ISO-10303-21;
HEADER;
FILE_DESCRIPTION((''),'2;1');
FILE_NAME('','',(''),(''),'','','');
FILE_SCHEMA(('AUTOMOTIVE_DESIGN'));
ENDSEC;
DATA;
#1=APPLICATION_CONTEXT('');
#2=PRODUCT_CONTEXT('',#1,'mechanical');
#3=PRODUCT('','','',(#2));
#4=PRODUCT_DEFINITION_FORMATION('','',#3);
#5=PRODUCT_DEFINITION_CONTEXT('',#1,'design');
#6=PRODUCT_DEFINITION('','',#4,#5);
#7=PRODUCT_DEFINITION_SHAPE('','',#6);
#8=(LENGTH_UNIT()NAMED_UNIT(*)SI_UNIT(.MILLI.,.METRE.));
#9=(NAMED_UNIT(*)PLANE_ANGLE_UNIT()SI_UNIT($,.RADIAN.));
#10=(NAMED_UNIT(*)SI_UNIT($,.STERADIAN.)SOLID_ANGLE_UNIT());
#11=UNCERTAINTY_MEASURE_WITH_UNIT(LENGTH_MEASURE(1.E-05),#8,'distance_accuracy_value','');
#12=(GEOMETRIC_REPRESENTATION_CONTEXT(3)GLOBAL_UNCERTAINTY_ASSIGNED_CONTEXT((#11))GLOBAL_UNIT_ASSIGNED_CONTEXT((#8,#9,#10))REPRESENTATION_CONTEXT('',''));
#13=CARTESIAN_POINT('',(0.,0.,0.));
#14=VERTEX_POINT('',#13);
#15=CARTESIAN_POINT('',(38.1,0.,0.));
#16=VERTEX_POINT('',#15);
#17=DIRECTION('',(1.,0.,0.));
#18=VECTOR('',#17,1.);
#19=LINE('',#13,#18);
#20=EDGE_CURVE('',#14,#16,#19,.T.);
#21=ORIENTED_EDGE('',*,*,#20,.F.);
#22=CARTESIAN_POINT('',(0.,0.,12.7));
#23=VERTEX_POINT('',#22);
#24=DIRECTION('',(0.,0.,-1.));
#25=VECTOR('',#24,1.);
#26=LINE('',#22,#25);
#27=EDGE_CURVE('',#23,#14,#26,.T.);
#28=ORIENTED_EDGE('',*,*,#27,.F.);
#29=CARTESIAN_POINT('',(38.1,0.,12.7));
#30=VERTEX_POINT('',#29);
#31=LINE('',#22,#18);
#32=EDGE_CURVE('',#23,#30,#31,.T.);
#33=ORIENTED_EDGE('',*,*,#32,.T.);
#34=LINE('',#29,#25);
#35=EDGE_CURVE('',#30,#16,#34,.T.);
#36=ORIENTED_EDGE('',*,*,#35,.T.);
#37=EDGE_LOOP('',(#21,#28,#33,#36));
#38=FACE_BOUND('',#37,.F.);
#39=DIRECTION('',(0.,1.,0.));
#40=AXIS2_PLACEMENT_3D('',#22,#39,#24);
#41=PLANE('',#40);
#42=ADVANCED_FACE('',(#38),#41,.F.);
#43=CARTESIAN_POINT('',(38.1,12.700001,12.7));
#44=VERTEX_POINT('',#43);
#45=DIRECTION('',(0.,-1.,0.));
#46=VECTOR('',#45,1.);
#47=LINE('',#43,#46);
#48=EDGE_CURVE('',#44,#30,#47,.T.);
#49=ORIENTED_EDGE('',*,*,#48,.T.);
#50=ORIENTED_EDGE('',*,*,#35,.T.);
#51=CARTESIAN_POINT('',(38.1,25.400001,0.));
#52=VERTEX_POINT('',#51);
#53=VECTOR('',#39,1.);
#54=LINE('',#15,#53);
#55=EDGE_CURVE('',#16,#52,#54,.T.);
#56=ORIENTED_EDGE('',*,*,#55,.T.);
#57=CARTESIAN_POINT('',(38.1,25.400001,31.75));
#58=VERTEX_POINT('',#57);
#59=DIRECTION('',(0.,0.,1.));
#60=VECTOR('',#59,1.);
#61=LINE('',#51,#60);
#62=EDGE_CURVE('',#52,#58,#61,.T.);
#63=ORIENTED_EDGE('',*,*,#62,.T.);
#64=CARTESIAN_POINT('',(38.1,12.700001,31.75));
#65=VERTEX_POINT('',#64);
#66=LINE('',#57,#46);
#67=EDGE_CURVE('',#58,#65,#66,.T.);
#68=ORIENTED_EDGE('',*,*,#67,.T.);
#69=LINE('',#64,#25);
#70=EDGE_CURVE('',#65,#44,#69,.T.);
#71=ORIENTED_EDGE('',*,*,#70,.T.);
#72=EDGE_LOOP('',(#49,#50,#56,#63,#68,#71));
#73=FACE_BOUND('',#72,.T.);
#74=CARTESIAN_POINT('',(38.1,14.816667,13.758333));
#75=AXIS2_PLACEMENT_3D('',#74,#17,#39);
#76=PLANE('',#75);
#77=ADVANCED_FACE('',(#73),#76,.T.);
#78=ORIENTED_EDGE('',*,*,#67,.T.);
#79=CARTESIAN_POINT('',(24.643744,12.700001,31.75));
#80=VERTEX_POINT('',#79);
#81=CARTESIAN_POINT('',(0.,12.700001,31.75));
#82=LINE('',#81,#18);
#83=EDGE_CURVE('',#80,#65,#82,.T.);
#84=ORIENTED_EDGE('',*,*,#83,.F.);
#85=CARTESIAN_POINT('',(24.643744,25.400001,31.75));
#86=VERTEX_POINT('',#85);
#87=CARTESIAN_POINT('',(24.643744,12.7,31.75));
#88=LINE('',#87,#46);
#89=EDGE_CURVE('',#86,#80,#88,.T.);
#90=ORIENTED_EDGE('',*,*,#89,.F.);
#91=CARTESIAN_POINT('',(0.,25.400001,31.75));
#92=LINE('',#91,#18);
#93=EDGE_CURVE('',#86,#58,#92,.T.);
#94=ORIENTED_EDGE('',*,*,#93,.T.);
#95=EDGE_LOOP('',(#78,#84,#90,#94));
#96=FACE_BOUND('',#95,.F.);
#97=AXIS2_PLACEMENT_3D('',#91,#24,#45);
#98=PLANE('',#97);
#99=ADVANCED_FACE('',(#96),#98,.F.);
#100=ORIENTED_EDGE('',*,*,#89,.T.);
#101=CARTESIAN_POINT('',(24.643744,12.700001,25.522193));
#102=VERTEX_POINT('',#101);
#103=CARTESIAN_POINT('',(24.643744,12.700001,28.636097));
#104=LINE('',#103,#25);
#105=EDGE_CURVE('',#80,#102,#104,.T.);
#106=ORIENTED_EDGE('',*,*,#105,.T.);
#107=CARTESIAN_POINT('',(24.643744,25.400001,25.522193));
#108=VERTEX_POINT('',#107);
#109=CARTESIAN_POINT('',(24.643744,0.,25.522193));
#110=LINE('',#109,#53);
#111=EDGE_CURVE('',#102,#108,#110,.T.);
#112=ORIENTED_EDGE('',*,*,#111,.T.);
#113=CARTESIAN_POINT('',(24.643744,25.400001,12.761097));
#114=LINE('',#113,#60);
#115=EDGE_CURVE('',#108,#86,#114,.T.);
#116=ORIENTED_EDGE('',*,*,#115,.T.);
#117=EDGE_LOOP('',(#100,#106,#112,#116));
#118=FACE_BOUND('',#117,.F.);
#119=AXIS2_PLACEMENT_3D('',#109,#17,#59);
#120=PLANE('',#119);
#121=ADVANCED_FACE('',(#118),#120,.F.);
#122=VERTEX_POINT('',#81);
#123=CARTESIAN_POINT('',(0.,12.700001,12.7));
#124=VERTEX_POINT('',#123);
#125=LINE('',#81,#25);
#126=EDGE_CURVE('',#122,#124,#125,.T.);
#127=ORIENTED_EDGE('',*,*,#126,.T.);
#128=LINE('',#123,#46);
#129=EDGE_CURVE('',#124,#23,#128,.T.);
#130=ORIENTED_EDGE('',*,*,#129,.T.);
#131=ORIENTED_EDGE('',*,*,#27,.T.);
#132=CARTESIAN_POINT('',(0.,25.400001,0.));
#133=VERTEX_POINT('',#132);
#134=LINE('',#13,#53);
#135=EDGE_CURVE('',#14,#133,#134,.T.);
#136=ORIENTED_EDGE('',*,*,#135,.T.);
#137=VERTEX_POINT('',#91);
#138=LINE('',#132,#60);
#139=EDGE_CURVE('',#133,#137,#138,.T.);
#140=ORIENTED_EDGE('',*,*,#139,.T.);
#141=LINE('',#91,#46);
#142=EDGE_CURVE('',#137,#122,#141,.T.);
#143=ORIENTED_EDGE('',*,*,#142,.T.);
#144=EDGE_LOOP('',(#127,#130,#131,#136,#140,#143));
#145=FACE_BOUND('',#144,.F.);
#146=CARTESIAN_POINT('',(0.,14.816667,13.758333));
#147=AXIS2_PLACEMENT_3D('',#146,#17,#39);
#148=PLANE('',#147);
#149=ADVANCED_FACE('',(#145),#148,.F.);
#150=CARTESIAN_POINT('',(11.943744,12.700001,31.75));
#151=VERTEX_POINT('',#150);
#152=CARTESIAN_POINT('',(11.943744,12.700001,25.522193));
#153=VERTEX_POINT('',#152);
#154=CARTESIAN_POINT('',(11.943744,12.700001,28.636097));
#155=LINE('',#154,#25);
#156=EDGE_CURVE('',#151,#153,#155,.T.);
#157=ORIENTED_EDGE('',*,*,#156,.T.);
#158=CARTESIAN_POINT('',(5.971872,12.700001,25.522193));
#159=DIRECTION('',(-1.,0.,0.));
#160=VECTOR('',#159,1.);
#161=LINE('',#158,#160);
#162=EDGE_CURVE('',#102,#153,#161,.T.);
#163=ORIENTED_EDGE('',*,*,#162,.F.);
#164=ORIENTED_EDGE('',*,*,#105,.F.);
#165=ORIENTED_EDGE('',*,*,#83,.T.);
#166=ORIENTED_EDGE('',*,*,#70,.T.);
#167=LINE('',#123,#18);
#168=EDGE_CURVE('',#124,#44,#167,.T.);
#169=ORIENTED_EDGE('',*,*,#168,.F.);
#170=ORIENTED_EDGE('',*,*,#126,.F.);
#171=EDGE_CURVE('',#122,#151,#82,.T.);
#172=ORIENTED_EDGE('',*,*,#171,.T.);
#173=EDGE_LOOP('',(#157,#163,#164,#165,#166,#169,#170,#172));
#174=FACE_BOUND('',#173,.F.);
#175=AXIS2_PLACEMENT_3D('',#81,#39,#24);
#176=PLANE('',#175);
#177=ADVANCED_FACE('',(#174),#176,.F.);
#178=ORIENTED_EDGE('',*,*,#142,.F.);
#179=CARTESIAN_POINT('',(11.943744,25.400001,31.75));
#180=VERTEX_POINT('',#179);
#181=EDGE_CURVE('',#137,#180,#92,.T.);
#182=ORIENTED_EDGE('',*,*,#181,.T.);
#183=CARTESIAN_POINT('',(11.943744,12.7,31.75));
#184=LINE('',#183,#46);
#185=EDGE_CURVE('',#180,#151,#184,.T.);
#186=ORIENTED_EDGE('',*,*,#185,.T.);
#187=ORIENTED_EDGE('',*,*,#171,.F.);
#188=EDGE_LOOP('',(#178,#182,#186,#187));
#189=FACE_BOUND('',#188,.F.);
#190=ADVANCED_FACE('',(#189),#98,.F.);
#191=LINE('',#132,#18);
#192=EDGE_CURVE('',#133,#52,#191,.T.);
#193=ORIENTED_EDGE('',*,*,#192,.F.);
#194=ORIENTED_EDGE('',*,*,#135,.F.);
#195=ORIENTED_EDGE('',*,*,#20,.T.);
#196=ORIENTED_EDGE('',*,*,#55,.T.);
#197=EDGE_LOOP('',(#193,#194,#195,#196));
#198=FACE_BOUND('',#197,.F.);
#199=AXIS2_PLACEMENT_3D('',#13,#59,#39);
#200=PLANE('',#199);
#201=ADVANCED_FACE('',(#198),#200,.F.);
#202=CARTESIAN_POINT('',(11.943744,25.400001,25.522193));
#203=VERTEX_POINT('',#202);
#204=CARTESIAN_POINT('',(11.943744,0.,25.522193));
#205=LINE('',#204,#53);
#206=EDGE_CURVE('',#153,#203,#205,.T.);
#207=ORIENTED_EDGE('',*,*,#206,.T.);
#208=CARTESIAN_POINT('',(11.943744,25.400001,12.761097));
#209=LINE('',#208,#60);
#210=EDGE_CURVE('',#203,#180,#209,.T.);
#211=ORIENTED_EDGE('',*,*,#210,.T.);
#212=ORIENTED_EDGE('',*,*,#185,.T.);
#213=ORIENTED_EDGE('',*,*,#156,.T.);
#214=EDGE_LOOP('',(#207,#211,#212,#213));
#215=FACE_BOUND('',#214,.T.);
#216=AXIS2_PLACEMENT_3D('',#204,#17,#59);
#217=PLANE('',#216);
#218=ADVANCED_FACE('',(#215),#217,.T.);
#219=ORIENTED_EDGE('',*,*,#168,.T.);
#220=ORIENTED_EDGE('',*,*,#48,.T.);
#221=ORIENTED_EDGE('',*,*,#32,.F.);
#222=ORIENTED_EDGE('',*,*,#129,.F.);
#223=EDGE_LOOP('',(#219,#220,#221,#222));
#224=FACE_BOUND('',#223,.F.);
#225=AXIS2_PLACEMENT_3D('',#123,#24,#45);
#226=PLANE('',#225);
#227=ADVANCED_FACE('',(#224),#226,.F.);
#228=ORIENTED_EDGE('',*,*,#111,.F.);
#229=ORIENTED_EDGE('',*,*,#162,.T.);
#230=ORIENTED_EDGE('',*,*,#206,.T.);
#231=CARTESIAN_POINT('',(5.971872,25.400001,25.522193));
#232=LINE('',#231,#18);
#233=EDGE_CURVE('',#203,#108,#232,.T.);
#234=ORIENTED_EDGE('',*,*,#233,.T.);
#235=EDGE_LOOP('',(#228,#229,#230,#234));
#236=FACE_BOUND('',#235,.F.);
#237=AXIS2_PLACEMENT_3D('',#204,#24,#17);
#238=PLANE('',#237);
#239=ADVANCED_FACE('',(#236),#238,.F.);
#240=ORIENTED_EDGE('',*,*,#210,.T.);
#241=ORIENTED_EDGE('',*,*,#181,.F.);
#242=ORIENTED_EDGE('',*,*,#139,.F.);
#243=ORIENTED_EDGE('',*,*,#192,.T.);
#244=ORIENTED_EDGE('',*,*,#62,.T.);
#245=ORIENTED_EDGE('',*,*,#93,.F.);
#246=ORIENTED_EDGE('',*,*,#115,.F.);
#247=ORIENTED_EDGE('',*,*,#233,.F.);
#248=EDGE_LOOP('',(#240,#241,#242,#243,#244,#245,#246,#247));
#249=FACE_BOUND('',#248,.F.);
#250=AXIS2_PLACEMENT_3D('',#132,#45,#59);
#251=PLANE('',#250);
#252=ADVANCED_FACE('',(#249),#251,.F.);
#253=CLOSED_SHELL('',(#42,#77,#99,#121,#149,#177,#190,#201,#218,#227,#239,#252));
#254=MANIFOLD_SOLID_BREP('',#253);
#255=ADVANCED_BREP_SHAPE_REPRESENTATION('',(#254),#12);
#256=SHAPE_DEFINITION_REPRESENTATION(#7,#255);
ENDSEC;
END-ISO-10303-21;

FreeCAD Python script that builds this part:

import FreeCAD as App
import Part
import Sketcher
Q = App.Units.Quantity


def add_polygon(sketch, points):
    """Adds a closed chain of lines whose ends are joined by coincident constraints."""
    first, n = sketch.GeometryCount, len(points)
    for a, b in zip(points, points[1:] + points[:1]):
        sketch.addGeometry(Part.LineSegment(App.Vector(*a, 0), App.Vector(*b, 0)), False)
    for i in range(n):
        sketch.addConstraint(Sketcher.Constraint("Coincident", first + i, 2, first + (i + 1) % n, 1))

doc = App.newDocument("Part")
body = doc.addObject("PartDesign::Body", "Body")

sketch1 = body.newObject("Sketcher::SketchObject", "Sketch")
sketch1.AttachmentSupport = (doc.getObject("YZ_Plane"), [""])
sketch1.MapMode = "FlatFace"
add_polygon(sketch1, [(0, 12.7), (0, 0), (25.400001, 0), (25.400001, 31.75), (12.700001, 31.75), (12.700001, 12.7)])
sketch1.addConstraint([
    Sketcher.Constraint("Vertical", 0),
    Sketcher.Constraint("Horizontal", 1),
    Sketcher.Constraint("Vertical", 2),
    Sketcher.Constraint("Horizontal", 3),
    Sketcher.Constraint("Vertical", 4),
    Sketcher.Constraint("Horizontal", 5),
    Sketcher.Constraint("Coincident", 0, 2, -1, 1),
    Sketcher.Constraint("Equal", 3, 5),
    Sketcher.Constraint("Equal", 5, 0),
    Sketcher.Constraint("DistanceX", 1, 1, 1, 2, Q("1 in")),
    Sketcher.Constraint("DistanceY", 2, 1, 2, 2, Q("1.25 in")),
])
pad1 = body.newObject("PartDesign::Pad", "Pad")
pad1.Profile = sketch1
pad1.Length = Q("1.5 in")

sketch2 = body.newObject("Sketcher::SketchObject", "Sketch001")
sketch2.AttachmentSupport = (doc.getObject("XZ_Plane"), [""])
sketch2.MapMode = "FlatFace"
add_polygon(sketch2, [(11.943744, 31.872193), (11.943744, 25.522193), (24.643744, 25.522193), (24.643744, 31.872193)])
sketch2.addConstraint([
    Sketcher.Constraint("Vertical", 0),
    Sketcher.Constraint("Horizontal", 1),
    Sketcher.Constraint("Vertical", 2),
    Sketcher.Constraint("Horizontal", 3),
    Sketcher.Constraint("DistanceX", 1, 1, 1, 2, Q("0.5 in")),
    Sketcher.Constraint("DistanceY", 0, 2, 0, 1, Q("0.25 in")),
    Sketcher.Constraint("DistanceX", -1, 1, 0, 2, Q("11.943744 mm")),
    Sketcher.Constraint("DistanceY", -1, 1, 0, 2, Q("25.522193 mm")),
])
pocket1 = body.newObject("PartDesign::Pocket", "Pocket")
pocket1.Profile = sketch2
pocket1.Type = "ThroughAll"

doc.recompute()
